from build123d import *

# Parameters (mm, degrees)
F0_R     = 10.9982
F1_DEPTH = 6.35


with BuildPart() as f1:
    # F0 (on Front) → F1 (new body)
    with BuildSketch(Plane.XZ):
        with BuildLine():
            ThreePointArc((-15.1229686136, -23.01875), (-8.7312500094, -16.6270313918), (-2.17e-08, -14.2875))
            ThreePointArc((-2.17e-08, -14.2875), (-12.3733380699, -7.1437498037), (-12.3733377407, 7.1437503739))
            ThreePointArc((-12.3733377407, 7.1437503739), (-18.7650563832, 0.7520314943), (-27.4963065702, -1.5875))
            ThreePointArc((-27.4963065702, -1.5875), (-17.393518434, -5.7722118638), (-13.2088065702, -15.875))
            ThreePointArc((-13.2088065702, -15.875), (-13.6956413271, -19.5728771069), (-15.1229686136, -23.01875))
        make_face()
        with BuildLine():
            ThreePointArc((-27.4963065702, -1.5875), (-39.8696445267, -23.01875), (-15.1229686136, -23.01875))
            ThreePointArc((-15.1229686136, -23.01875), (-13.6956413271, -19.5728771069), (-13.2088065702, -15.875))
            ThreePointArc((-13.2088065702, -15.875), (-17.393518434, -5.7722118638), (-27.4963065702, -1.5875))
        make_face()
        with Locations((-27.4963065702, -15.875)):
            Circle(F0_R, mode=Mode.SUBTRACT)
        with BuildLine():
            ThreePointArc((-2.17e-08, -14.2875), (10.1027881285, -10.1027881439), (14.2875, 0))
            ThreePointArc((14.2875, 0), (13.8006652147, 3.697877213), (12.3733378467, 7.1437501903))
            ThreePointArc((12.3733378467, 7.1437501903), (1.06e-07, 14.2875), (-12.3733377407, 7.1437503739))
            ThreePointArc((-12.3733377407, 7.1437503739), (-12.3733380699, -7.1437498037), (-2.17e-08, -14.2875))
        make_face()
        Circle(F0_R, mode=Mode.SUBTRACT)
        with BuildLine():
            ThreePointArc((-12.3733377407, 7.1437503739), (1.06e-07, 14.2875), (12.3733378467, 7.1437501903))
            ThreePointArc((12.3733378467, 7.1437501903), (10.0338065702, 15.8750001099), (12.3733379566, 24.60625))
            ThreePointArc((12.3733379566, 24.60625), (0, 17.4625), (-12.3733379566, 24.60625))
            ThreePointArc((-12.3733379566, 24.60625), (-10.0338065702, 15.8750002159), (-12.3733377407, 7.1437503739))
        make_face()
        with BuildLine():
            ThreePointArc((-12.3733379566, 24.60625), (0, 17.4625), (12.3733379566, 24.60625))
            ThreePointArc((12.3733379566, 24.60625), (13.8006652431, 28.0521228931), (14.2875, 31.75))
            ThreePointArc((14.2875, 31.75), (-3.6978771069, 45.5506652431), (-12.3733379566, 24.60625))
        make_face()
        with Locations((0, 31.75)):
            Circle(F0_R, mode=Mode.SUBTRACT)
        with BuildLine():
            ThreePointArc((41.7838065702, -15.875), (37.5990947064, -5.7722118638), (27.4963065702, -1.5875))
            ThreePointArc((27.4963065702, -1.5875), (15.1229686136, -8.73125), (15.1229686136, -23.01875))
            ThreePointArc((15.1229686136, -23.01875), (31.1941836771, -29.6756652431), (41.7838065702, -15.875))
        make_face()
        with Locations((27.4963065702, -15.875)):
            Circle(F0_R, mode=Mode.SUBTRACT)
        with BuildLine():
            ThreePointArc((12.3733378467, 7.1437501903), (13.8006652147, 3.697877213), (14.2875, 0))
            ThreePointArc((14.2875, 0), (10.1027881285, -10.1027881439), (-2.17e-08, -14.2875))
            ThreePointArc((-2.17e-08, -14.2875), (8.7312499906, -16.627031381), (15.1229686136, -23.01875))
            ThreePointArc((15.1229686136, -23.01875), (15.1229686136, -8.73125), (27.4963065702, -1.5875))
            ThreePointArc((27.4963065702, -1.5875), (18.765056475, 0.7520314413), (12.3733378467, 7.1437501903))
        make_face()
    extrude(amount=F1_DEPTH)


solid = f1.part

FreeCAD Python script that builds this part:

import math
import FreeCAD as App
import Part
import Sketcher
from FreeCAD import Vector
Q = App.Units.Quantity

doc = App.newDocument("Part")
body = doc.addObject("PartDesign::Body", "Body")

# Sketch on XZ plane
sketch1 = body.newObject("Sketcher::SketchObject", "Sketch")
sketch1.AttachmentSupport = (doc.getObject("XZ_Plane"), [""])
sketch1.MapMode = "FlatFace"
sketch1.addGeometry(Part.ArcOfCircle(Part.Circle(Vector(0, -32, 0), Vector(0, 0, 1), 17), math.radians(90), math.radians(150)), False)
sketch1.addGeometry(Part.ArcOfCircle(Part.Circle(Vector(0, -32, 0), Vector(0, 0, 1), 17), math.radians(30), math.radians(90)), False)
sketch1.addGeometry(Part.ArcOfCircle(Part.Circle(Vector(27, -16, 0), Vector(0, 0, 1), 14), math.radians(-150), math.radians(90)), False)
sketch1.addGeometry(Part.ArcOfCircle(Part.Circle(Vector(27, 16, 0), Vector(0, 0, 1), 17), math.radians(-150), math.radians(-90)), False)
sketch1.addGeometry(Part.ArcOfCircle(Part.Circle(Vector(27, 16, 0), Vector(0, 0, 1), 17), math.radians(150), math.radians(210)), False)
sketch1.addGeometry(Part.ArcOfCircle(Part.Circle(Vector(0, 32, 0), Vector(0, 0, 1), 14), math.radians(-30), math.radians(0)), False)
sketch1.addGeometry(Part.ArcOfCircle(Part.Circle(Vector(0, 32, 0), Vector(0, 0, 1), 14), math.radians(0), math.radians(210)), False)
sketch1.addGeometry(Part.ArcOfCircle(Part.Circle(Vector(-27, 16, 0), Vector(0, 0, 1), 17), math.radians(-30), math.radians(30)), False)
sketch1.addGeometry(Part.ArcOfCircle(Part.Circle(Vector(-27, 16, 0), Vector(0, 0, 1), 17), math.radians(-90), math.radians(-30)), False)
sketch1.addGeometry(Part.ArcOfCircle(Part.Circle(Vector(-27, -16, 0), Vector(0, 0, 1), 14), math.radians(90), math.radians(330)), False)
sketch1.addGeometry(Part.Circle(Vector(-27, -16, 0), Vector(0, 0, 1), 11), False)
sketch1.addGeometry(Part.Circle(Vector(0, 0, 0), Vector(0, 0, 1), 11), False)
sketch1.addGeometry(Part.Circle(Vector(0, 32, 0), Vector(0, 0, 1), 11), False)
sketch1.addGeometry(Part.Circle(Vector(27, -16, 0), Vector(0, 0, 1), 11), False)
sketch1.addConstraint(Sketcher.Constraint("Tangent", 0, 1, 1, 2))
sketch1.addConstraint(Sketcher.Constraint("Tangent", 1, 1, 2, 1))
sketch1.addConstraint(Sketcher.Constraint("Tangent", 2, 2, 3, 2))
sketch1.addConstraint(Sketcher.Constraint("Tangent", 3, 1, 4, 2))
sketch1.addConstraint(Sketcher.Constraint("Tangent", 4, 1, 5, 1))
sketch1.addConstraint(Sketcher.Constraint("Tangent", 5, 2, 6, 1))
sketch1.addConstraint(Sketcher.Constraint("Tangent", 6, 2, 7, 2))
sketch1.addConstraint(Sketcher.Constraint("Tangent", 7, 1, 8, 2))
sketch1.addConstraint(Sketcher.Constraint("Tangent", 8, 1, 9, 1))
sketch1.addConstraint(Sketcher.Constraint("Tangent", 9, 2, 0, 2))
sketch1.addConstraint(Sketcher.Constraint("Coincident", 11, 3, -1, 1))
sketch1.addConstraint(Sketcher.Constraint("Coincident", 10, 3, 9, 3))
sketch1.addConstraint(Sketcher.Constraint("Coincident", 12, 3, 5, 3))
sketch1.addConstraint(Sketcher.Constraint("Coincident", 13, 3, 2, 3))
sketch1.addConstraint(Sketcher.Constraint("Equal", 0, 1))
sketch1.addConstraint(Sketcher.Constraint("Equal", 1, 3))
sketch1.addConstraint(Sketcher.Constraint("Equal", 3, 4))
sketch1.addConstraint(Sketcher.Constraint("Equal", 2, 5))
sketch1.addConstraint(Sketcher.Constraint("Equal", 5, 6))
sketch1.addConstraint(Sketcher.Constraint("Equal", 4, 7))
sketch1.addConstraint(Sketcher.Constraint("Equal", 7, 8))
sketch1.addConstraint(Sketcher.Constraint("Equal", 6, 9))
sketch1.addConstraint(Sketcher.Constraint("Equal", 10, 11))
sketch1.addConstraint(Sketcher.Constraint("Equal", 11, 12))
sketch1.addConstraint(Sketcher.Constraint("Equal", 12, 13))
sketch1.addConstraint(Sketcher.Constraint("Symmetric", 0, 3, 5, 3, -1, 1))
sketch1.addConstraint(Sketcher.Constraint("Symmetric", 3, 3, 7, 3, -2))
sketch1.addConstraint(Sketcher.Constraint("PointOnObject", 0, 1, -2))
sketch1.addConstraint(Sketcher.Constraint("Horizontal", 12, 3, 5, 2))
sketch1.addConstraint(Sketcher.Constraint("Horizontal", 3, 1, 7, 1))
sketch1.addConstraint(Sketcher.Constraint("Vertical", 2, 3, 3, 3))
sketch1.addConstraint(Sketcher.Constraint("Vertical", 3, 1, 4, 1))
sketch1.addConstraint(Sketcher.Constraint("Diameter", 10, Q("0.866 in")))
sketch1.addConstraint(Sketcher.Constraint("Radius", 0, Q("0.6875 in")))
sketch1.addConstraint(Sketcher.Constraint("Radius", 2, Q("0.5625 in")))
sketch1.addConstraint(Sketcher.Constraint("DistanceY", 0, 3, 5, 3, Q("2.5 in")))
pad1 = body.newObject("PartDesign::Pad", "Pad")
pad1.Profile = sketch1
pad1.Length = Q("0.25 in")

doc.recompute()
